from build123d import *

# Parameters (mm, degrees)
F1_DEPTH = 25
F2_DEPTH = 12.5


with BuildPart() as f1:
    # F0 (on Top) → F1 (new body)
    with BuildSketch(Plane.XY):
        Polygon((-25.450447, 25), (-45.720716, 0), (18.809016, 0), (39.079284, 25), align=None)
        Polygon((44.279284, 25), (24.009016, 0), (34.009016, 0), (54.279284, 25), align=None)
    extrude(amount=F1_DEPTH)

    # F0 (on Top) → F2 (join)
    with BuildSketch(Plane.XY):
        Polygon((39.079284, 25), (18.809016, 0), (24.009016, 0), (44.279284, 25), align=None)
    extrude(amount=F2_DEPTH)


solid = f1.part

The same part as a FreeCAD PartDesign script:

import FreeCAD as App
import Part
import Sketcher
from FreeCAD import Vector
Q = App.Units.Quantity


def add_polygon(sketch, points):
    """Adds a closed chain of lines whose ends are joined by coincident constraints."""
    first, n = sketch.GeometryCount, len(points)
    for a, b in zip(points, points[1:] + points[:1]):
        sketch.addGeometry(Part.LineSegment(App.Vector(*a, 0), App.Vector(*b, 0)), False)
    for i in range(n):
        sketch.addConstraint(Sketcher.Constraint("Coincident", first + i, 2, first + (i + 1) % n, 1))

doc = App.newDocument("Part")
body = doc.addObject("PartDesign::Body", "Body")
body.AllowCompound = True

sketch1 = body.newObject("Sketcher::SketchObject", "Sketch")
sketch1.AttachmentSupport = (doc.getObject("XY_Plane"), [""])
sketch1.MapMode = "FlatFace"
add_polygon(sketch1, [(-25, 25), (-46, 0), (19, 0), (39, 25)])
add_polygon(sketch1, [(44, 25), (24, 0), (34, 0), (54, 25)])
sketch1.addConstraint(Sketcher.Constraint("Horizontal", 1))
sketch1.addConstraint(Sketcher.Constraint("Horizontal", 3))
sketch1.addConstraint(Sketcher.Constraint("Horizontal", 5))
sketch1.addConstraint(Sketcher.Constraint("Horizontal", 7))
sketch1.addConstraint(Sketcher.Constraint("PointOnObject", 0, 2, -1))
sketch1.addConstraint(Sketcher.Constraint("PointOnObject", 4, 2, -1))
sketch1.addConstraint(Sketcher.Constraint("Parallel", 0, 2))
sketch1.addConstraint(Sketcher.Constraint("Parallel", 2, 4))
sketch1.addConstraint(Sketcher.Constraint("Parallel", 4, 6))
sketch1.addConstraint(Sketcher.Constraint("Horizontal", 3, 2, 6, 2))
sketch1.addConstraint(Sketcher.Constraint("DistanceX", 5, 1, 5, 2, Q("10 mm")))
sketch1.addConstraint(Sketcher.Constraint("DistanceY", -1, 1, 2, 2, Q("25 mm")))
sketch1.addConstraint(Sketcher.Constraint("DistanceX", 0, 2, 2, 2, Q("84.8 mm")))
sketch1.addConstraint(Sketcher.Constraint("DistanceX", 1, 2, 4, 2, Q("5.2 mm")))
sketch1.addConstraint(Sketcher.Constraint("DistanceX", 1, 1, 1, 2, Q("64.529732 mm")))
sketch1.addConstraint(Sketcher.Constraint("DistanceX", 0, 2, -1, 1, Q("45.720716 mm")))
pad1 = body.newObject("PartDesign::Pad", "Pad")
pad1.Profile = sketch1
pad1.Length = 25

sketch2 = body.newObject("Sketcher::SketchObject", "Sketch001")
sketch2.AttachmentSupport = (doc.getObject("XY_Plane"), [""])
sketch2.MapMode = "FlatFace"
add_polygon(sketch2, [(39, 25), (19, 0), (24, 0), (44, 25)])
sketch2.addConstraint(Sketcher.Constraint("Horizontal", 1))
sketch2.addConstraint(Sketcher.Constraint("Horizontal", 3))
sketch2.addConstraint(Sketcher.Constraint("PointOnObject", 0, 2, -1))
sketch2.addConstraint(Sketcher.Constraint("Parallel", 0, 2))
sketch2.addConstraint(Sketcher.Constraint("DistanceX", 1, 1, 1, 2, Q("5.2 mm")))
sketch2.addConstraint(Sketcher.Constraint("DistanceY", -1, 1, 2, 2, Q("25 mm")))
sketch2.addConstraint(Sketcher.Constraint("Distance", 0, Q("32.185148 mm")))
sketch2.addConstraint(Sketcher.Constraint("DistanceX", -1, 1, 0, 2, Q("18.809016 mm")))
pad2 = body.newObject("PartDesign::Pad", "Pad001")
pad2.Profile = sketch2
pad2.Length = 12.5

doc.recompute()
